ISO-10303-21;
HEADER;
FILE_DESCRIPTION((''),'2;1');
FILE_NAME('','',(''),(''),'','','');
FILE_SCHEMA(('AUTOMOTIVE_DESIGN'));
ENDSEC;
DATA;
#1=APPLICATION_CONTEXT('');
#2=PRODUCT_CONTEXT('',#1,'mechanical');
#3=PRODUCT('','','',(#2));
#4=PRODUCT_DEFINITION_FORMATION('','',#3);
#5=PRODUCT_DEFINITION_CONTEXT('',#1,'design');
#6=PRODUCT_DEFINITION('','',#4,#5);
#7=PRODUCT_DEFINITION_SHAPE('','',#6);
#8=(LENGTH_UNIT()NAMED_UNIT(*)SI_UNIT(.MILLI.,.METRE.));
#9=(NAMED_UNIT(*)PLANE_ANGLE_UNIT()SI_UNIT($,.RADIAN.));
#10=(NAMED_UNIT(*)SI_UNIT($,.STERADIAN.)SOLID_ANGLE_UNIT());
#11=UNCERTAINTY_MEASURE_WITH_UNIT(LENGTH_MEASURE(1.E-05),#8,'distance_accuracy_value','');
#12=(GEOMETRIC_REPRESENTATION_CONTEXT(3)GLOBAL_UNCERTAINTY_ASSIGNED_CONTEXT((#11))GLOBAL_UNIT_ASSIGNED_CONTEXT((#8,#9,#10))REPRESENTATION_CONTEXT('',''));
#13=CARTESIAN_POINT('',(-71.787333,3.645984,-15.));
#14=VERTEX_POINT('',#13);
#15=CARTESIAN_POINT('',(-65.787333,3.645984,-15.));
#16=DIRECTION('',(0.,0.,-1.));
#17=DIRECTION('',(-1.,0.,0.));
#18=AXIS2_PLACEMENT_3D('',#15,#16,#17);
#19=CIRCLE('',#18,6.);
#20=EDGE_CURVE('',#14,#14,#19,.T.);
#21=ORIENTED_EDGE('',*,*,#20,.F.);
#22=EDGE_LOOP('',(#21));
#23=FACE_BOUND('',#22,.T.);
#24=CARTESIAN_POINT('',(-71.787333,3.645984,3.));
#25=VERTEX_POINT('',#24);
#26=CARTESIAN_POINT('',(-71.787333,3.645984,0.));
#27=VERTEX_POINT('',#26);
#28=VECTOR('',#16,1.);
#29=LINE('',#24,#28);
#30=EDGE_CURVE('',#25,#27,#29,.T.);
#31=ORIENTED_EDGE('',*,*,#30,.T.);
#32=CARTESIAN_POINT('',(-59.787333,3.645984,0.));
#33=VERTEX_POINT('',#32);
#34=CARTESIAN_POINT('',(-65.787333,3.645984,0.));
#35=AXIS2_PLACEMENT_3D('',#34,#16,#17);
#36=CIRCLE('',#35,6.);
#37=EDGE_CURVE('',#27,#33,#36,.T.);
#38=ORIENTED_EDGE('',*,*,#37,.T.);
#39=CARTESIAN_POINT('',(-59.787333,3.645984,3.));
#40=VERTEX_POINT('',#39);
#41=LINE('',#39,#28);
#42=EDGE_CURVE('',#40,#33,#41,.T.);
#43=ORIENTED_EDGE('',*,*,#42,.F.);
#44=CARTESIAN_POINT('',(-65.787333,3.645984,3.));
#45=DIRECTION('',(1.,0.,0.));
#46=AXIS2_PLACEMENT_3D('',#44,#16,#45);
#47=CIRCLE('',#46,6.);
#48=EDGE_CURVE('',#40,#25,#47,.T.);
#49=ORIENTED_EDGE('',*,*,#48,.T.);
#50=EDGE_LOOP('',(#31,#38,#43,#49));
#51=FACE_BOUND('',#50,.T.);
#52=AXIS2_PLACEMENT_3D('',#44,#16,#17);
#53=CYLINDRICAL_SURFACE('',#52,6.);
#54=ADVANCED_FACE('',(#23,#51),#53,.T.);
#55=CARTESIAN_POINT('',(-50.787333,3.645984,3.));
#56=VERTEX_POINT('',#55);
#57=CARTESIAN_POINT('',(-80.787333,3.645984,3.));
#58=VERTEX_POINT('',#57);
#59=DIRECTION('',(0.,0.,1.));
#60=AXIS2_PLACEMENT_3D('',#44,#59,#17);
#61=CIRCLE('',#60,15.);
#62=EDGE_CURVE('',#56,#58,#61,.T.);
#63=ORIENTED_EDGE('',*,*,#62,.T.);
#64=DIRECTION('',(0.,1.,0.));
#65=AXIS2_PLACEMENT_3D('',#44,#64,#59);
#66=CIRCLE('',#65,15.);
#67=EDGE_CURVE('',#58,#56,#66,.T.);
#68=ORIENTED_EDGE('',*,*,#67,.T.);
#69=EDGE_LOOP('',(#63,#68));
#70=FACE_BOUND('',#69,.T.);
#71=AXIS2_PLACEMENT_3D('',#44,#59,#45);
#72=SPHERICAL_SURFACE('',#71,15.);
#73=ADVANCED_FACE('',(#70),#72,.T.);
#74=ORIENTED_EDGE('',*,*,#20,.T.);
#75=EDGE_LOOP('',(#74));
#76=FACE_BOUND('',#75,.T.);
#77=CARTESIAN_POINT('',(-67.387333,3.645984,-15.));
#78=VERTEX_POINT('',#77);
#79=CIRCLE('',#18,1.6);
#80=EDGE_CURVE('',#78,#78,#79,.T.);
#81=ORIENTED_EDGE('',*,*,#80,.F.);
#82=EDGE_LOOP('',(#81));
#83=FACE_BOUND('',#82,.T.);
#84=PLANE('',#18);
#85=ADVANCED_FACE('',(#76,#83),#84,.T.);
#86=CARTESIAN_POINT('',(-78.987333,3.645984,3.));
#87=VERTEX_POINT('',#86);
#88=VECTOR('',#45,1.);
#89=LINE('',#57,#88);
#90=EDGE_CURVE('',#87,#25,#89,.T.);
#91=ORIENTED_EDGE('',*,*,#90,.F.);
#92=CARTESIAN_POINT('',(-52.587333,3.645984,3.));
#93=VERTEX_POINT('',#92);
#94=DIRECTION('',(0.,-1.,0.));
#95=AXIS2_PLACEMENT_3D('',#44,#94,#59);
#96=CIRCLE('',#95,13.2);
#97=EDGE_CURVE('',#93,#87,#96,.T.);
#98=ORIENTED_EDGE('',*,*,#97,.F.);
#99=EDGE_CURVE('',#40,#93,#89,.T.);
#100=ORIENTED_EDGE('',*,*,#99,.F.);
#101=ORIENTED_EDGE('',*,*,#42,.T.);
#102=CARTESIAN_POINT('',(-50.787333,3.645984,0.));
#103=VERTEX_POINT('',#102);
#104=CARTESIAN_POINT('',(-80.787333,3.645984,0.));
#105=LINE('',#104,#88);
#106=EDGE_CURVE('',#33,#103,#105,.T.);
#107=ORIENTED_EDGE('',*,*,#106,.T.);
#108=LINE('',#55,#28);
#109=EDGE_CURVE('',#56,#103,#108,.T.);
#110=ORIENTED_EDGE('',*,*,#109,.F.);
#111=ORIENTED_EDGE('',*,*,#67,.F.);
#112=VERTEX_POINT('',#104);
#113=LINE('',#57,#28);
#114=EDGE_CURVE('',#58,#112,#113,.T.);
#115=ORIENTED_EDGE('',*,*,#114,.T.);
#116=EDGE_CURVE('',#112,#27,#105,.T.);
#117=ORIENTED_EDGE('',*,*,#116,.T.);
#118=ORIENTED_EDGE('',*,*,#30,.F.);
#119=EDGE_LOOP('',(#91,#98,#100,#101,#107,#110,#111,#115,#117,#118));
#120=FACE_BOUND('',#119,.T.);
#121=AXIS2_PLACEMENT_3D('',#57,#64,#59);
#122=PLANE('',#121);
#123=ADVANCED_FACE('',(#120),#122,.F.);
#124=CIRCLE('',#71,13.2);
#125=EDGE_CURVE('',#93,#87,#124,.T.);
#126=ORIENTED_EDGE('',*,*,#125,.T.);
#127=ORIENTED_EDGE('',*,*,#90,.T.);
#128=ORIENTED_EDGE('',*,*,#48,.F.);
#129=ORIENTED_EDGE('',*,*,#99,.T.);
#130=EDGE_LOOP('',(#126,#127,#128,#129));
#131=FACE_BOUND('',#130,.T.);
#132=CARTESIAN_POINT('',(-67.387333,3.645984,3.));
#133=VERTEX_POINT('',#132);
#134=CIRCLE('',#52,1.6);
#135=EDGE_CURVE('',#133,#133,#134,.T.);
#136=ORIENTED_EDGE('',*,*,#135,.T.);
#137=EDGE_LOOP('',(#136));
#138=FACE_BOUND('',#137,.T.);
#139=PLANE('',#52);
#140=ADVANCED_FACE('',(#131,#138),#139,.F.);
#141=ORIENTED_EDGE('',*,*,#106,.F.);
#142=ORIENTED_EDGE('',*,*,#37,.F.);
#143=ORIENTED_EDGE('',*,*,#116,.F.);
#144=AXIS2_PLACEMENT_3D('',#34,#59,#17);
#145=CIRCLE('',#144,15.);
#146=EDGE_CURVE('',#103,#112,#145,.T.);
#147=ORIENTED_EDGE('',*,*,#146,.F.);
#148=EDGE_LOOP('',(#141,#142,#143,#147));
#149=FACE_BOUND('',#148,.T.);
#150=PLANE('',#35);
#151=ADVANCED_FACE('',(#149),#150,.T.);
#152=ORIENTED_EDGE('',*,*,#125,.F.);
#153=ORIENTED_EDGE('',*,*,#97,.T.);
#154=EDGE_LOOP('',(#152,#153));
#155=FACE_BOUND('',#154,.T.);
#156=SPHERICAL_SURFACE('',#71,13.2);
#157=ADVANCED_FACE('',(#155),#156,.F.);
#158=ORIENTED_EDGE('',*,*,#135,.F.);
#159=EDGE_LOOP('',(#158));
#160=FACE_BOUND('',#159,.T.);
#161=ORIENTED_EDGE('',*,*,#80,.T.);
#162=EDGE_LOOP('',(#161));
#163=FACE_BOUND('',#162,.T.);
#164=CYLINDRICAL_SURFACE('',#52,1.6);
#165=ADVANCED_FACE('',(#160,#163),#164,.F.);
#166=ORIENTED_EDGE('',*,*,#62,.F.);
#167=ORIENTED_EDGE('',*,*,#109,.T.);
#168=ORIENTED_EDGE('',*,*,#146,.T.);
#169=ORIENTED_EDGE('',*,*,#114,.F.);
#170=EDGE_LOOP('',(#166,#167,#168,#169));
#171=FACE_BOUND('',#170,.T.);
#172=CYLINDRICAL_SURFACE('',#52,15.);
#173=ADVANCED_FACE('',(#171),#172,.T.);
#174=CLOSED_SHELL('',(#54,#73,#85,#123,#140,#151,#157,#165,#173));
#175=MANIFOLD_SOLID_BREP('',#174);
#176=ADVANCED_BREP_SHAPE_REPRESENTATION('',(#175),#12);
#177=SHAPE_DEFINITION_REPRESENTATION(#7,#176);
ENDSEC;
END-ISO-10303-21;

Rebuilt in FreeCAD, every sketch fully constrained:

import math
import FreeCAD as App
import Part
import Sketcher

V = App.Vector

doc = App.newDocument("Part")
body = doc.addObject("PartDesign::Body", "Body")

# Sketch on XY plane
sketch1 = body.newObject("Sketcher::SketchObject", "Sketch")
sketch1.AttachmentSupport = (doc.getObject("XY_Plane"), [""])
sketch1.MapMode = "FlatFace"
sketch1.addGeometry([
    Part.LineSegment(V(-81, 4, 0), V(-51, 4, 0)),
    Part.ArcOfCircle(Part.Circle(V(-66, 4, 0), V(0, 0, 1), 15), math.radians(0), math.radians(180)),
], False)
sketch1.addConstraint([
    Sketcher.Constraint("Coincident", 0, 1, 1, 2),
    Sketcher.Constraint("Coincident", 1, 1, 0, 2),
    Sketcher.Constraint("Horizontal", 0),
    Sketcher.Constraint("Horizontal", 1, 3, 0, 1),
    Sketcher.Constraint("Radius", 1, 15.0),
    Sketcher.Constraint("DistanceX", 1, 3, -1, 1, 65.787333),
    Sketcher.Constraint("DistanceY", -1, 1, 1, 3, 3.645984),
])
pad1 = body.newObject("PartDesign::Pad", "Pad")
pad1.Profile = sketch1
pad1.Length = 3

# Sketch on XZ plane
sketch2 = body.newObject("Sketcher::SketchObject", "Sketch001")
sketch2.AttachmentSupport = (doc.getObject("XZ_Plane"), [""])
sketch2.MapMode = "FlatFace"
sketch2.AttachmentOffset = App.Placement(V(0, 0, -3.645984), App.Rotation())
sketch2.addGeometry([
    Part.LineSegment(V(-65.8, 16.2, 0), V(-65.8, 18, 0)),
    Part.ArcOfCircle(Part.Circle(V(-65.8, 3, 0), V(0, 0, 1), 15), math.radians(90), math.radians(180)),
    Part.LineSegment(V(-80.8, 3, 0), V(-79, 3, 0)),
    Part.ArcOfCircle(Part.Circle(V(-65.8, 3, 0), V(0, 0, 1), 13.2), math.radians(90), math.radians(180)),
], False)
sketch2.addGeometry(Part.LineSegment(V(-65.8, 18, 0), V(-65.8, 3, 0)), True)  # axis
sketch2.addConstraint([
    Sketcher.Constraint("Coincident", 0, 2, 1, 1),
    Sketcher.Constraint("Coincident", 1, 2, 2, 1),
    Sketcher.Constraint("Coincident", 2, 2, 3, 2),
    Sketcher.Constraint("Coincident", 3, 1, 0, 1),
    Sketcher.Constraint("Vertical", 0),
    Sketcher.Constraint("Horizontal", 2),
    Sketcher.Constraint("Vertical", 4),
    Sketcher.Constraint("Coincident", 3, 3, 1, 3),
    Sketcher.Constraint("Coincident", 4, 1, 0, 2),
    Sketcher.Constraint("Coincident", 4, 2, 1, 3),
    Sketcher.Constraint("Horizontal", 3, 3, 1, 2),
    Sketcher.Constraint("Radius", 1, 15.0),
    Sketcher.Constraint("Radius", 3, 13.2),
    Sketcher.Constraint("DistanceY", -1, 1, 1, 3, 3.0),
    Sketcher.Constraint("DistanceX", 1, 3, -1, 1, 65.787333),
])
revolution = body.newObject("PartDesign::Revolution", "Revolution")
revolution.Profile = sketch2
revolution.ReferenceAxis = (sketch2, ["Axis0"])
revolution.Angle = 180

# Sketch on XY plane
sketch3 = body.newObject("Sketcher::SketchObject", "Sketch002")
sketch3.AttachmentSupport = (doc.getObject("XY_Plane"), [""])
sketch3.MapMode = "FlatFace"
sketch3.addGeometry([
    Part.ArcOfCircle(Part.Circle(V(-66, 4, 0), V(0, 0, 1), 6), math.radians(180), math.radians(360)),
    Part.LineSegment(V(-72, 4, 0), V(-60, 4, 0)),
], False)
sketch3.addConstraint([
    Sketcher.Constraint("Coincident", 0, 1, 1, 1),
    Sketcher.Constraint("Coincident", 1, 2, 0, 2),
    Sketcher.Constraint("Horizontal", 1),
    Sketcher.Constraint("Radius", 0, 6.0),
    Sketcher.Constraint("DistanceX", 0, 3, -1, 1, 65.787333),
    Sketcher.Constraint("DistanceY", -1, 1, 0, 3, 3.645984),
    Sketcher.Constraint("DistanceY", -1, 1, 0, 1, 3.645984),
])
pad2 = body.newObject("PartDesign::Pad", "Pad001")
pad2.Profile = sketch3
pad2.Length = 3

# Sketch on XY plane
sketch4 = body.newObject("Sketcher::SketchObject", "Sketch003")
sketch4.AttachmentSupport = (doc.getObject("XY_Plane"), [""])
sketch4.MapMode = "FlatFace"
sketch4.addGeometry(Part.Circle(V(-65.8, 3.6, 0), V(0, 0, 1), 1.6), False)
sketch4.addConstraint([
    Sketcher.Constraint("Diameter", 0, 3.2),
    Sketcher.Constraint("DistanceX", 0, 3, -1, 1, 65.787333),
    Sketcher.Constraint("DistanceY", -1, 1, 0, 3, 3.645984),
])
pocket1 = body.newObject("PartDesign::Pocket", "Pocket")
pocket1.Profile = sketch4
pocket1.Length = 3
pocket1.Reversed = True

# Sketch on XY plane
sketch5 = body.newObject("Sketcher::SketchObject", "Sketch004")
sketch5.AttachmentSupport = (doc.getObject("XY_Plane"), [""])
sketch5.MapMode = "FlatFace"
sketch5.AttachmentOffset = App.Placement(V(0, 0, -15), App.Rotation())
sketch5.addGeometry([
    Part.Circle(V(-65.8, 3.6, 0), V(0, 0, 1), 6),
    Part.Circle(V(-65.8, 3.6, 0), V(0, 0, 1), 1.6),
], False)
sketch5.addConstraint([
    Sketcher.Constraint("Coincident", 1, 3, 0, 3),
    Sketcher.Constraint("Diameter", 0, 12.0),
    Sketcher.Constraint("Diameter", 1, 3.2),
    Sketcher.Constraint("DistanceX", 0, 3, -1, 1, 65.787333),
    Sketcher.Constraint("DistanceY", -1, 1, 0, 3, 3.645984),
])
pad3 = body.newObject("PartDesign::Pad", "Pad002")
pad3.Profile = sketch5
pad3.Length = 15

doc.recompute()
